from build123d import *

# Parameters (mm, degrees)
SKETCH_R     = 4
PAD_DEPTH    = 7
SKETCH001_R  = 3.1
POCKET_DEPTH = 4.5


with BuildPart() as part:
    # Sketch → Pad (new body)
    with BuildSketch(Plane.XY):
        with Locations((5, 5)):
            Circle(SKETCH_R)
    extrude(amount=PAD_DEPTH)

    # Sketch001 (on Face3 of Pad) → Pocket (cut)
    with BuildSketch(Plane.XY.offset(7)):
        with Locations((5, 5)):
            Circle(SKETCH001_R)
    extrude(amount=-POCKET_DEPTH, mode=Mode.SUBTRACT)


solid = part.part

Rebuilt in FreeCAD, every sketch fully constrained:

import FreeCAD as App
import Part
import Sketcher
Q = App.Units.Quantity

doc = App.newDocument("Part")
body = doc.addObject("PartDesign::Body", "Body")

sketch1 = doc.addObject("Sketcher::SketchObject", "Sketch")
body.addObject(sketch1)
sketch1.AttachmentSupport = (doc.XY_Plane, [""])
sketch1.MapMode = "FlatFace"
sketch1.addGeometry(Part.Circle(App.Vector(5, 5, 0), App.Vector(0, 0, 1), 4), False)
sketch1.addConstraint(Sketcher.Constraint("Diameter", 0, Q("8 mm")))
sketch1.addConstraint(Sketcher.Constraint("DistanceX", -1, 1, 0, 3, Q("5 mm")))
sketch1.addConstraint(Sketcher.Constraint("DistanceY", -1, 1, 0, 3, Q("5 mm")))
pad1 = doc.addObject("PartDesign::Pad", "Pad")
body.addObject(pad1)
pad1.Profile = sketch1
pad1.Length = 7

sketch2 = doc.addObject("Sketcher::SketchObject", "Sketch001")
body.addObject(sketch2)
sketch2.AttachmentSupport = (doc.XY_Plane, [""])
sketch2.MapMode = "FlatFace"
sketch2.AttachmentOffset = App.Placement(App.Vector(0, 0, 7), App.Rotation())
sketch2.addGeometry(Part.Circle(App.Vector(5, 5, 0), App.Vector(0, 0, 1), 3.1), False)
sketch2.addConstraint(Sketcher.Constraint("Diameter", 0, Q("6.2 mm")))
sketch2.addConstraint(Sketcher.Constraint("DistanceX", -1, 1, 0, 3, Q("5 mm")))
sketch2.addConstraint(Sketcher.Constraint("DistanceY", -1, 1, 0, 3, Q("5 mm")))
pocket1 = doc.addObject("PartDesign::Pocket", "Pocket")
body.addObject(pocket1)
pocket1.Profile = sketch2
pocket1.Length = 4.5

doc.recompute()
